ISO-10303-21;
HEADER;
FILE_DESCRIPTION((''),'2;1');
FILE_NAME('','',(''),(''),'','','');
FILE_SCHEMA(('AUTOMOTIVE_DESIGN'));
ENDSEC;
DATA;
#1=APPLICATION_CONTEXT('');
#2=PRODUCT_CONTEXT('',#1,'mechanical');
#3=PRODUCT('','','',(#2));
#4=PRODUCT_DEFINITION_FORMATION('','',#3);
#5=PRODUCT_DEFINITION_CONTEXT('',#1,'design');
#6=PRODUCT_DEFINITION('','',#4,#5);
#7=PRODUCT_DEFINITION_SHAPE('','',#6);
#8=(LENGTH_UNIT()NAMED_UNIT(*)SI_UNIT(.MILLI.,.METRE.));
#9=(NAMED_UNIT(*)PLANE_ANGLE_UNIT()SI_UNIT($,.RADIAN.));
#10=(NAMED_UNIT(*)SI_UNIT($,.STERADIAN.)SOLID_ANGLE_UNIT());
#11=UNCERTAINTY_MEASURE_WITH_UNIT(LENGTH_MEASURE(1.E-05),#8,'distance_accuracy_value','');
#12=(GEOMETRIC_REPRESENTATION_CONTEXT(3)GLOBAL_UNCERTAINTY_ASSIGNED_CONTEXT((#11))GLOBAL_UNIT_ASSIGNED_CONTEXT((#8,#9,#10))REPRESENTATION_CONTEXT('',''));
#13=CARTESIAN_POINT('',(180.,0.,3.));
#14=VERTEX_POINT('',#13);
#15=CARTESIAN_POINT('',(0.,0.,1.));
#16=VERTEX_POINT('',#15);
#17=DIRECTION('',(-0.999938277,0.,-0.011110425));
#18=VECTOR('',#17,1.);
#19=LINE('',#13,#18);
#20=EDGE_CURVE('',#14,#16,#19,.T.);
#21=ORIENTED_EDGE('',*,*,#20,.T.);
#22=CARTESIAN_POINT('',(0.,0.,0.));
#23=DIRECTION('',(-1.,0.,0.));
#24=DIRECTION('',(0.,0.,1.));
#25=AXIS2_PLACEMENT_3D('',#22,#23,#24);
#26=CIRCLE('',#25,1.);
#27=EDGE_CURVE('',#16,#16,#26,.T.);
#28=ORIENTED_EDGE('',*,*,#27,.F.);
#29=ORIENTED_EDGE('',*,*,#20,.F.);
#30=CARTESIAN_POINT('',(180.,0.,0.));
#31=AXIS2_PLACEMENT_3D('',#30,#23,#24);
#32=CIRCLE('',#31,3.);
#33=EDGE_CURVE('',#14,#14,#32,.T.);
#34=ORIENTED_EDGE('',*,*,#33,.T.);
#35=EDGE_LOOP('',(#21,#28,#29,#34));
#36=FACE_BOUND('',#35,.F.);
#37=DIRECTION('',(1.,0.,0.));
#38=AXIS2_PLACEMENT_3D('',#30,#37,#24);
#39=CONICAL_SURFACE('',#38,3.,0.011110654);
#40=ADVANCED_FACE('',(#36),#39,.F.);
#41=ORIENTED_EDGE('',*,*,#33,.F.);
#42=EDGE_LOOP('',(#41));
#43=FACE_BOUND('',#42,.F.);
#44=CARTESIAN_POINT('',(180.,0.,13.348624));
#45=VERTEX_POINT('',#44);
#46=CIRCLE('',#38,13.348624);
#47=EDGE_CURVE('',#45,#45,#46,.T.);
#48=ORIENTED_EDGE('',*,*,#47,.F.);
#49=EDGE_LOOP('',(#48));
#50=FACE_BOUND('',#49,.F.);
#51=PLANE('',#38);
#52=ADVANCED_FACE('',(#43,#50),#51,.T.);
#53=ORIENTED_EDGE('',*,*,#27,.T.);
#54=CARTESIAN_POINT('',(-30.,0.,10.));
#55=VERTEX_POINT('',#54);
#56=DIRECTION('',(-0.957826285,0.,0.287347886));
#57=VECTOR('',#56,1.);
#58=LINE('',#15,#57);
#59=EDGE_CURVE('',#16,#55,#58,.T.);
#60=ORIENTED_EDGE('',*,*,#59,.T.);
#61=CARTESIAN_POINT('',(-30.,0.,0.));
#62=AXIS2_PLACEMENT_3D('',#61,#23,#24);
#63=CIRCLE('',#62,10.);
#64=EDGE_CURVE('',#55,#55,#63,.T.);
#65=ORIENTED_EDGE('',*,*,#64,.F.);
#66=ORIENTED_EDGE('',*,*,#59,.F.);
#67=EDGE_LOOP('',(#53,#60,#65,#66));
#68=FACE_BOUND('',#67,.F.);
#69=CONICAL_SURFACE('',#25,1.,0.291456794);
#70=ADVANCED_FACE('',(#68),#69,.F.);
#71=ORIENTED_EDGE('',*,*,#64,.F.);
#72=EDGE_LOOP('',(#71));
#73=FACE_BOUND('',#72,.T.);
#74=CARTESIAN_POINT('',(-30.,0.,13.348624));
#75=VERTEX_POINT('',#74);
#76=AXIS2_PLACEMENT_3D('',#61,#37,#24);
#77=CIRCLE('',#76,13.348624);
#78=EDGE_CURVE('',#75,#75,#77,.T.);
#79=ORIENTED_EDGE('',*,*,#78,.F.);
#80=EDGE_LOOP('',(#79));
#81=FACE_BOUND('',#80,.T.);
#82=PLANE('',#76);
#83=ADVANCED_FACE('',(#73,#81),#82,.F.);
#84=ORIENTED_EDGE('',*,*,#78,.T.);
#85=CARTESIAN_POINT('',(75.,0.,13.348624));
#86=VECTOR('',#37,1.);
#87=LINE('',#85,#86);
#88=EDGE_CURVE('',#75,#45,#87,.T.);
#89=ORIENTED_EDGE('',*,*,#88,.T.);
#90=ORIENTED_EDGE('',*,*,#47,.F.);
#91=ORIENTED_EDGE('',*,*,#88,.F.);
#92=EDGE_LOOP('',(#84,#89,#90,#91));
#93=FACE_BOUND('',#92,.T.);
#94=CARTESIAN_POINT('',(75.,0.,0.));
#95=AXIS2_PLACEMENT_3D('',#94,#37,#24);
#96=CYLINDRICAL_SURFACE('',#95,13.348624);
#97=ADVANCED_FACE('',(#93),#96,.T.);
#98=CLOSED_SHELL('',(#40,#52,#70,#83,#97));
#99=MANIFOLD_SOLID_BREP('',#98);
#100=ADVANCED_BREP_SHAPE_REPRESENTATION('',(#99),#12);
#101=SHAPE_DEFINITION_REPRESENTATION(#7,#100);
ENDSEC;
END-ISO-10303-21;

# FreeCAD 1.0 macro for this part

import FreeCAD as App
import Part
import Sketcher
Q = App.Units.Quantity


def add_polygon(sketch, points):
    """Adds a closed chain of lines whose ends are joined by coincident constraints."""
    first, n = sketch.GeometryCount, len(points)
    for a, b in zip(points, points[1:] + points[:1]):
        sketch.addGeometry(Part.LineSegment(App.Vector(*a, 0), App.Vector(*b, 0)), False)
    for i in range(n):
        sketch.addConstraint(Sketcher.Constraint("Coincident", first + i, 2, first + (i + 1) % n, 1))

doc = App.newDocument("Part")
body = doc.addObject("PartDesign::Body", "Body")

# Sketch on XZ plane
sketch1 = body.newObject("Sketcher::SketchObject", "Sketch")
sketch1.AttachmentSupport = (doc.getObject("XZ_Plane"), [""])
sketch1.MapMode = "FlatFace"
add_polygon(sketch1, [(-30, 13), (-30, 0), (180, 0), (180, 13)])  # lines 0-3
sketch1.addConstraint(Sketcher.Constraint("Vertical", 0))
sketch1.addConstraint(Sketcher.Constraint("Horizontal", 1))
sketch1.addConstraint(Sketcher.Constraint("Vertical", 2))
sketch1.addConstraint(Sketcher.Constraint("Horizontal", 3))
sketch1.addConstraint(Sketcher.Constraint("PointOnObject", 0, 2, -1))
sketch1.addConstraint(Sketcher.Constraint("DistanceX", 1, 1, 1, 2, Q("210 mm")))
sketch1.addConstraint(Sketcher.Constraint("DistanceX", 0, 2, -1, 1, Q("30 mm")))
sketch1.addConstraint(Sketcher.Constraint("DistanceY", 0, 2, 0, 1, Q("13.348624 mm")))
revolution = body.newObject("PartDesign::Revolution", "Revolution")
revolution.Profile = sketch1
revolution.ReferenceAxis = (sketch1, ["H_Axis"])
revolution.Angle = 360

# Sketch on XZ plane
sketch2 = body.newObject("Sketcher::SketchObject", "Sketch001")
sketch2.AttachmentSupport = (doc.getObject("XZ_Plane"), [""])
sketch2.MapMode = "FlatFace"
add_polygon(sketch2, [(0, 1), (-30, 10), (-30, 0), (180, 0), (180, 3)])  # lines 0-4
sketch2.addConstraint(Sketcher.Constraint("Vertical", 1))
sketch2.addConstraint(Sketcher.Constraint("Horizontal", 2))
sketch2.addConstraint(Sketcher.Constraint("Vertical", 3))
sketch2.addConstraint(Sketcher.Constraint("PointOnObject", 1, 2, -1))
sketch2.addConstraint(Sketcher.Constraint("PointOnObject", 4, 2, -2))
sketch2.addConstraint(Sketcher.Constraint("DistanceX", 2, 1, 2, 2, Q("210 mm")))
sketch2.addConstraint(Sketcher.Constraint("DistanceY", 1, 2, 1, 1, Q("10 mm")))
sketch2.addConstraint(Sketcher.Constraint("DistanceY", 3, 1, 3, 2, Q("3 mm")))
sketch2.addConstraint(Sketcher.Constraint("DistanceX", 0, 2, -1, 1, Q("30 mm")))
sketch2.addConstraint(Sketcher.Constraint("DistanceY", -1, 1, 4, 2, Q("1 mm")))
groove = body.newObject("PartDesign::Groove", "Groove")
groove.Profile = sketch2
groove.ReferenceAxis = (sketch2, ["H_Axis"])
groove.Angle = 360

doc.recompute()
